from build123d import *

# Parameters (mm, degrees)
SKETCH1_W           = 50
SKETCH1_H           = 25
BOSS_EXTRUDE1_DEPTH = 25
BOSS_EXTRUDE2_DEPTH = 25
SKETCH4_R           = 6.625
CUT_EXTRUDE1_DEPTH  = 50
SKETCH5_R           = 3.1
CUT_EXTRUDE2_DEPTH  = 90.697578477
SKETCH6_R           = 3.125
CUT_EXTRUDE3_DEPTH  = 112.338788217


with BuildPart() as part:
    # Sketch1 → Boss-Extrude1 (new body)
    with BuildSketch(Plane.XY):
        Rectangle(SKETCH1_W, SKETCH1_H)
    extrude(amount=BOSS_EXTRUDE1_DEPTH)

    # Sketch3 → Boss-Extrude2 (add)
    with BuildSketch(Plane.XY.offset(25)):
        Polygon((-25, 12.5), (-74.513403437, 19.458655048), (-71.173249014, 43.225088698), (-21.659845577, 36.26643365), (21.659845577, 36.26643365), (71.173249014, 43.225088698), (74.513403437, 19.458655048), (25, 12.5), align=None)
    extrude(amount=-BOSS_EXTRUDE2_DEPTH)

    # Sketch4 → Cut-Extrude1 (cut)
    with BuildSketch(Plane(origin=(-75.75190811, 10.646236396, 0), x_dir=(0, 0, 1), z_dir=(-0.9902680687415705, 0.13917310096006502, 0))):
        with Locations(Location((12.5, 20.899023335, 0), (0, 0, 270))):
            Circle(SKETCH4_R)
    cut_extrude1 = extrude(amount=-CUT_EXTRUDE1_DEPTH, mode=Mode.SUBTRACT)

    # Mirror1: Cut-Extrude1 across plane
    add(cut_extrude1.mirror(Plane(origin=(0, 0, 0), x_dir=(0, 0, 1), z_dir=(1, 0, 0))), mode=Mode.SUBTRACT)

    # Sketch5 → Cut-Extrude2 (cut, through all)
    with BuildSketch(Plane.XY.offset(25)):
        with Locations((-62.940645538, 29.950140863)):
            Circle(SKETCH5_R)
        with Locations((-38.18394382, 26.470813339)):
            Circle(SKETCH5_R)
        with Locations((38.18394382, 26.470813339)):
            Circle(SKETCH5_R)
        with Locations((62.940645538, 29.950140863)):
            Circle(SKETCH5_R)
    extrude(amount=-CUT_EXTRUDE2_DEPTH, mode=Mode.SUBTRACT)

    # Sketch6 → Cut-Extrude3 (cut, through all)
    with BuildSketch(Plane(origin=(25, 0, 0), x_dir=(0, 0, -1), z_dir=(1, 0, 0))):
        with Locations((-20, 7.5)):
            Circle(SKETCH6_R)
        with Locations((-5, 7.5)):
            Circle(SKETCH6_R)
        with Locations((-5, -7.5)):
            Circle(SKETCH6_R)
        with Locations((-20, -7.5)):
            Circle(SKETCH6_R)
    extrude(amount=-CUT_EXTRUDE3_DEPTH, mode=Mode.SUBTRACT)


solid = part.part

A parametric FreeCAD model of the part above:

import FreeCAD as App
import Part
import Sketcher
Q = App.Units.Quantity


def add_polygon(sketch, points):
    """Adds a closed chain of lines whose ends are joined by coincident constraints."""
    first, n = sketch.GeometryCount, len(points)
    for a, b in zip(points, points[1:] + points[:1]):
        sketch.addGeometry(Part.LineSegment(App.Vector(*a, 0), App.Vector(*b, 0)), False)
    for i in range(n):
        sketch.addConstraint(Sketcher.Constraint("Coincident", first + i, 2, first + (i + 1) % n, 1))

doc = App.newDocument("Part")
params = doc.addObject("Spreadsheet::Sheet", "Params")
for row, (alias, value) in enumerate([
    ("sketch1_width", "50 mm"),
    ("sketch1_height", "25 mm"),
    ("pad1_length", "25 mm"),
    ("sketch2_width", "50 mm"),
    ("sketch2_length", "50 mm"),
    ("sketch2_length2", "24 mm"),
    ("pad2_length", "25 mm"),
    ("sketch3_diameter", "13.25 mm"),
    ("pocket1_length", "50 mm"),
    ("sketch4_diameter", "6.2 mm"),
    ("sketch5_diameter", "6.25 mm"),
], start=1):
    params.set(f"A{row}", alias)
    params.set(f"B{row}", "=" + value)
    params.setAlias(f"B{row}", alias)

body = doc.addObject("PartDesign::Body", "Body")

sketch1 = body.newObject("Sketcher::SketchObject", "Sketch")
sketch1.AttachmentSupport = (doc.getObject("XY_Plane"), [""])
sketch1.MapMode = "FlatFace"
add_polygon(sketch1, [(-25, 12), (-25, -12), (25, -12), (25, 12)])
sketch1.addConstraint([
    Sketcher.Constraint("Vertical", 0),
    Sketcher.Constraint("Horizontal", 1),
    Sketcher.Constraint("Vertical", 2),
    Sketcher.Constraint("Horizontal", 3),
    Sketcher.Constraint("Symmetric", 0, 2, 2, 2, -1, 1),
    Sketcher.Constraint("DistanceX", 1, 1, 1, 2, 50.0),
    Sketcher.Constraint("DistanceY", 0, 2, 0, 1, 25.0),
])
sketch1.setExpression("Constraints[9]", "Params.sketch1_width")
sketch1.setExpression("Constraints[10]", "Params.sketch1_height")
pad1 = body.newObject("PartDesign::Pad", "Pad")
pad1.Profile = sketch1
pad1.setExpression("Length", "Params.pad1_length")

sketch2 = body.newObject("Sketcher::SketchObject", "Sketch001")
sketch2.AttachmentSupport = (doc.getObject("XY_Plane"), [""])
sketch2.MapMode = "FlatFace"
sketch2.AttachmentOffset = App.Placement(App.Vector(0, 0, 25), App.Rotation())
add_polygon(sketch2, [(-75, 19), (-25, 12), (25, 12), (75, 19), (71, 43), (22, 36), (-22, 36), (-71, 43)])
sketch2.addConstraint([
    Sketcher.Constraint("Horizontal", 1),
    Sketcher.Constraint("Horizontal", 5),
    Sketcher.Constraint("Symmetric", 3, 2, 6, 2, -2),
    Sketcher.Constraint("Symmetric", 2, 2, 7, 2, -2),
    Sketcher.Constraint("Perpendicular", 2, 3),
    Sketcher.Constraint("Perpendicular", 3, 4),
    Sketcher.Constraint("Parallel", 0, 6),
    Sketcher.Constraint("Perpendicular", 6, 7),
    Sketcher.Constraint("Equal", 2, 4),
    Sketcher.Constraint("DistanceX", 1, 1, 1, 2, 50.0),
    Sketcher.Constraint("Angle", 0, Q("-8 deg")),
    Sketcher.Constraint("Distance", 0, 50.0),
    Sketcher.Constraint("Distance", 3, 24.0),
    Sketcher.Constraint("DistanceY", -1, 1, 0, 2, 12.5),
])
sketch2.setExpression("Constraints[17]", "Params.sketch2_width")
sketch2.setExpression("Constraints[19]", "Params.sketch2_length")
sketch2.setExpression("Constraints[20]", "Params.sketch2_length2")
pad2 = body.newObject("PartDesign::Pad", "Pad001")
pad2.Profile = sketch2
pad2.setExpression("Length", "Params.pad2_length")
pad2.Reversed = True

sketch3 = body.newObject("Sketcher::SketchObject", "Sketch002")
sketch3.Placement = App.Placement(App.Vector(-75.751908, 10.646236, 0), App.Rotation(App.Vector(0, 0, 1), App.Vector(0.139173101, 0.990268069, 0), App.Vector(-0.990268069, 0.139173101, 0), "ZXY"))
sketch3.addGeometry(Part.Circle(App.Vector(12, 21, 0), App.Vector(0, 0, 1), 7), False)
sketch3.addConstraint([
    Sketcher.Constraint("Diameter", 0, 13.25),
    Sketcher.Constraint("DistanceX", -1, 1, 0, 3, 12.5),
    Sketcher.Constraint("DistanceY", -1, 1, 0, 3, 20.899023),
])
sketch3.setExpression("Constraints[0]", "Params.sketch3_diameter")
pocket1 = body.newObject("PartDesign::Pocket", "Pocket")
pocket1.Profile = sketch3
pocket1.setExpression("Length", "Params.pocket1_length")
doc.recompute()

mirrored = body.newObject("PartDesign::Mirrored", "Mirrored")
mirrored.Originals = [pocket1]
mirrored.MirrorPlane = (doc.getObject("YZ_Plane"), [""])
body.Tip = mirrored

sketch4 = body.newObject("Sketcher::SketchObject", "Sketch003")
sketch4.AttachmentSupport = (doc.getObject("XY_Plane"), [""])
sketch4.MapMode = "FlatFace"
sketch4.AttachmentOffset = App.Placement(App.Vector(0, 0, 25), App.Rotation())
sketch4.addGeometry([
    Part.Circle(App.Vector(-62.9, 30, 0), App.Vector(0, 0, 1), 3.1),
    Part.Circle(App.Vector(-38.2, 26.5, 0), App.Vector(0, 0, 1), 3.1),
    Part.Circle(App.Vector(38.2, 26.5, 0), App.Vector(0, 0, 1), 3.1),
    Part.Circle(App.Vector(62.9, 30, 0), App.Vector(0, 0, 1), 3.1),
], False)
sketch4.addConstraint([
    Sketcher.Constraint("Equal", 0, 1),
    Sketcher.Constraint("Equal", 1, 2),
    Sketcher.Constraint("Equal", 2, 3),
    Sketcher.Constraint("Symmetric", 1, 3, 2, 3, -2),
    Sketcher.Constraint("Symmetric", 0, 3, 3, 3, -2),
    Sketcher.Constraint("Diameter", 0, 6.2),
    Sketcher.Constraint("DistanceX", 0, 3, 1, 3, 24.756702),
    Sketcher.Constraint("DistanceY", -1, 1, 0, 3, 29.950141),
    Sketcher.Constraint("DistanceX", 0, 3, 2, 3, 101.124589),
    Sketcher.Constraint("DistanceY", -1, 1, 1, 3, 26.470813),
])
sketch4.setExpression("Constraints[5]", "Params.sketch4_diameter")
pocket2 = body.newObject("PartDesign::Pocket", "Pocket001")
pocket2.Profile = sketch4
pocket2.Type = "ThroughAll"

sketch5 = body.newObject("Sketcher::SketchObject", "Sketch004")
sketch5.AttachmentSupport = (doc.getObject("YZ_Plane"), [""])
sketch5.MapMode = "FlatFace"
sketch5.AttachmentOffset = App.Placement(App.Vector(0, 0, 25), App.Rotation())
sketch5.addGeometry([
    Part.Circle(App.Vector(7.5, 20, 0), App.Vector(0, 0, 1), 3.1),
    Part.Circle(App.Vector(7.5, 5, 0), App.Vector(0, 0, 1), 3.1),
    Part.Circle(App.Vector(-7.5, 5, 0), App.Vector(0, 0, 1), 3.1),
    Part.Circle(App.Vector(-7.5, 20, 0), App.Vector(0, 0, 1), 3.1),
], False)
sketch5.addConstraint([
    Sketcher.Constraint("Equal", 0, 1),
    Sketcher.Constraint("Equal", 1, 2),
    Sketcher.Constraint("Equal", 2, 3),
    Sketcher.Constraint("Symmetric", 1, 3, 2, 3, -2),
    Sketcher.Constraint("Symmetric", 0, 3, 3, 3, -2),
    Sketcher.Constraint("Vertical", 0, 3, 1, 3),
    Sketcher.Constraint("Diameter", 0, 6.25),
    Sketcher.Constraint("DistanceY", -1, 1, 0, 3, 20.0),
    Sketcher.Constraint("DistanceY", -1, 1, 1, 3, 5.0),
    Sketcher.Constraint("DistanceX", 2, 3, 1, 3, 15.0),
])
sketch5.setExpression("Constraints[6]", "Params.sketch5_diameter")
pocket3 = body.newObject("PartDesign::Pocket", "Pocket002")
pocket3.Profile = sketch5
pocket3.Type = "ThroughAll"

doc.recompute()
